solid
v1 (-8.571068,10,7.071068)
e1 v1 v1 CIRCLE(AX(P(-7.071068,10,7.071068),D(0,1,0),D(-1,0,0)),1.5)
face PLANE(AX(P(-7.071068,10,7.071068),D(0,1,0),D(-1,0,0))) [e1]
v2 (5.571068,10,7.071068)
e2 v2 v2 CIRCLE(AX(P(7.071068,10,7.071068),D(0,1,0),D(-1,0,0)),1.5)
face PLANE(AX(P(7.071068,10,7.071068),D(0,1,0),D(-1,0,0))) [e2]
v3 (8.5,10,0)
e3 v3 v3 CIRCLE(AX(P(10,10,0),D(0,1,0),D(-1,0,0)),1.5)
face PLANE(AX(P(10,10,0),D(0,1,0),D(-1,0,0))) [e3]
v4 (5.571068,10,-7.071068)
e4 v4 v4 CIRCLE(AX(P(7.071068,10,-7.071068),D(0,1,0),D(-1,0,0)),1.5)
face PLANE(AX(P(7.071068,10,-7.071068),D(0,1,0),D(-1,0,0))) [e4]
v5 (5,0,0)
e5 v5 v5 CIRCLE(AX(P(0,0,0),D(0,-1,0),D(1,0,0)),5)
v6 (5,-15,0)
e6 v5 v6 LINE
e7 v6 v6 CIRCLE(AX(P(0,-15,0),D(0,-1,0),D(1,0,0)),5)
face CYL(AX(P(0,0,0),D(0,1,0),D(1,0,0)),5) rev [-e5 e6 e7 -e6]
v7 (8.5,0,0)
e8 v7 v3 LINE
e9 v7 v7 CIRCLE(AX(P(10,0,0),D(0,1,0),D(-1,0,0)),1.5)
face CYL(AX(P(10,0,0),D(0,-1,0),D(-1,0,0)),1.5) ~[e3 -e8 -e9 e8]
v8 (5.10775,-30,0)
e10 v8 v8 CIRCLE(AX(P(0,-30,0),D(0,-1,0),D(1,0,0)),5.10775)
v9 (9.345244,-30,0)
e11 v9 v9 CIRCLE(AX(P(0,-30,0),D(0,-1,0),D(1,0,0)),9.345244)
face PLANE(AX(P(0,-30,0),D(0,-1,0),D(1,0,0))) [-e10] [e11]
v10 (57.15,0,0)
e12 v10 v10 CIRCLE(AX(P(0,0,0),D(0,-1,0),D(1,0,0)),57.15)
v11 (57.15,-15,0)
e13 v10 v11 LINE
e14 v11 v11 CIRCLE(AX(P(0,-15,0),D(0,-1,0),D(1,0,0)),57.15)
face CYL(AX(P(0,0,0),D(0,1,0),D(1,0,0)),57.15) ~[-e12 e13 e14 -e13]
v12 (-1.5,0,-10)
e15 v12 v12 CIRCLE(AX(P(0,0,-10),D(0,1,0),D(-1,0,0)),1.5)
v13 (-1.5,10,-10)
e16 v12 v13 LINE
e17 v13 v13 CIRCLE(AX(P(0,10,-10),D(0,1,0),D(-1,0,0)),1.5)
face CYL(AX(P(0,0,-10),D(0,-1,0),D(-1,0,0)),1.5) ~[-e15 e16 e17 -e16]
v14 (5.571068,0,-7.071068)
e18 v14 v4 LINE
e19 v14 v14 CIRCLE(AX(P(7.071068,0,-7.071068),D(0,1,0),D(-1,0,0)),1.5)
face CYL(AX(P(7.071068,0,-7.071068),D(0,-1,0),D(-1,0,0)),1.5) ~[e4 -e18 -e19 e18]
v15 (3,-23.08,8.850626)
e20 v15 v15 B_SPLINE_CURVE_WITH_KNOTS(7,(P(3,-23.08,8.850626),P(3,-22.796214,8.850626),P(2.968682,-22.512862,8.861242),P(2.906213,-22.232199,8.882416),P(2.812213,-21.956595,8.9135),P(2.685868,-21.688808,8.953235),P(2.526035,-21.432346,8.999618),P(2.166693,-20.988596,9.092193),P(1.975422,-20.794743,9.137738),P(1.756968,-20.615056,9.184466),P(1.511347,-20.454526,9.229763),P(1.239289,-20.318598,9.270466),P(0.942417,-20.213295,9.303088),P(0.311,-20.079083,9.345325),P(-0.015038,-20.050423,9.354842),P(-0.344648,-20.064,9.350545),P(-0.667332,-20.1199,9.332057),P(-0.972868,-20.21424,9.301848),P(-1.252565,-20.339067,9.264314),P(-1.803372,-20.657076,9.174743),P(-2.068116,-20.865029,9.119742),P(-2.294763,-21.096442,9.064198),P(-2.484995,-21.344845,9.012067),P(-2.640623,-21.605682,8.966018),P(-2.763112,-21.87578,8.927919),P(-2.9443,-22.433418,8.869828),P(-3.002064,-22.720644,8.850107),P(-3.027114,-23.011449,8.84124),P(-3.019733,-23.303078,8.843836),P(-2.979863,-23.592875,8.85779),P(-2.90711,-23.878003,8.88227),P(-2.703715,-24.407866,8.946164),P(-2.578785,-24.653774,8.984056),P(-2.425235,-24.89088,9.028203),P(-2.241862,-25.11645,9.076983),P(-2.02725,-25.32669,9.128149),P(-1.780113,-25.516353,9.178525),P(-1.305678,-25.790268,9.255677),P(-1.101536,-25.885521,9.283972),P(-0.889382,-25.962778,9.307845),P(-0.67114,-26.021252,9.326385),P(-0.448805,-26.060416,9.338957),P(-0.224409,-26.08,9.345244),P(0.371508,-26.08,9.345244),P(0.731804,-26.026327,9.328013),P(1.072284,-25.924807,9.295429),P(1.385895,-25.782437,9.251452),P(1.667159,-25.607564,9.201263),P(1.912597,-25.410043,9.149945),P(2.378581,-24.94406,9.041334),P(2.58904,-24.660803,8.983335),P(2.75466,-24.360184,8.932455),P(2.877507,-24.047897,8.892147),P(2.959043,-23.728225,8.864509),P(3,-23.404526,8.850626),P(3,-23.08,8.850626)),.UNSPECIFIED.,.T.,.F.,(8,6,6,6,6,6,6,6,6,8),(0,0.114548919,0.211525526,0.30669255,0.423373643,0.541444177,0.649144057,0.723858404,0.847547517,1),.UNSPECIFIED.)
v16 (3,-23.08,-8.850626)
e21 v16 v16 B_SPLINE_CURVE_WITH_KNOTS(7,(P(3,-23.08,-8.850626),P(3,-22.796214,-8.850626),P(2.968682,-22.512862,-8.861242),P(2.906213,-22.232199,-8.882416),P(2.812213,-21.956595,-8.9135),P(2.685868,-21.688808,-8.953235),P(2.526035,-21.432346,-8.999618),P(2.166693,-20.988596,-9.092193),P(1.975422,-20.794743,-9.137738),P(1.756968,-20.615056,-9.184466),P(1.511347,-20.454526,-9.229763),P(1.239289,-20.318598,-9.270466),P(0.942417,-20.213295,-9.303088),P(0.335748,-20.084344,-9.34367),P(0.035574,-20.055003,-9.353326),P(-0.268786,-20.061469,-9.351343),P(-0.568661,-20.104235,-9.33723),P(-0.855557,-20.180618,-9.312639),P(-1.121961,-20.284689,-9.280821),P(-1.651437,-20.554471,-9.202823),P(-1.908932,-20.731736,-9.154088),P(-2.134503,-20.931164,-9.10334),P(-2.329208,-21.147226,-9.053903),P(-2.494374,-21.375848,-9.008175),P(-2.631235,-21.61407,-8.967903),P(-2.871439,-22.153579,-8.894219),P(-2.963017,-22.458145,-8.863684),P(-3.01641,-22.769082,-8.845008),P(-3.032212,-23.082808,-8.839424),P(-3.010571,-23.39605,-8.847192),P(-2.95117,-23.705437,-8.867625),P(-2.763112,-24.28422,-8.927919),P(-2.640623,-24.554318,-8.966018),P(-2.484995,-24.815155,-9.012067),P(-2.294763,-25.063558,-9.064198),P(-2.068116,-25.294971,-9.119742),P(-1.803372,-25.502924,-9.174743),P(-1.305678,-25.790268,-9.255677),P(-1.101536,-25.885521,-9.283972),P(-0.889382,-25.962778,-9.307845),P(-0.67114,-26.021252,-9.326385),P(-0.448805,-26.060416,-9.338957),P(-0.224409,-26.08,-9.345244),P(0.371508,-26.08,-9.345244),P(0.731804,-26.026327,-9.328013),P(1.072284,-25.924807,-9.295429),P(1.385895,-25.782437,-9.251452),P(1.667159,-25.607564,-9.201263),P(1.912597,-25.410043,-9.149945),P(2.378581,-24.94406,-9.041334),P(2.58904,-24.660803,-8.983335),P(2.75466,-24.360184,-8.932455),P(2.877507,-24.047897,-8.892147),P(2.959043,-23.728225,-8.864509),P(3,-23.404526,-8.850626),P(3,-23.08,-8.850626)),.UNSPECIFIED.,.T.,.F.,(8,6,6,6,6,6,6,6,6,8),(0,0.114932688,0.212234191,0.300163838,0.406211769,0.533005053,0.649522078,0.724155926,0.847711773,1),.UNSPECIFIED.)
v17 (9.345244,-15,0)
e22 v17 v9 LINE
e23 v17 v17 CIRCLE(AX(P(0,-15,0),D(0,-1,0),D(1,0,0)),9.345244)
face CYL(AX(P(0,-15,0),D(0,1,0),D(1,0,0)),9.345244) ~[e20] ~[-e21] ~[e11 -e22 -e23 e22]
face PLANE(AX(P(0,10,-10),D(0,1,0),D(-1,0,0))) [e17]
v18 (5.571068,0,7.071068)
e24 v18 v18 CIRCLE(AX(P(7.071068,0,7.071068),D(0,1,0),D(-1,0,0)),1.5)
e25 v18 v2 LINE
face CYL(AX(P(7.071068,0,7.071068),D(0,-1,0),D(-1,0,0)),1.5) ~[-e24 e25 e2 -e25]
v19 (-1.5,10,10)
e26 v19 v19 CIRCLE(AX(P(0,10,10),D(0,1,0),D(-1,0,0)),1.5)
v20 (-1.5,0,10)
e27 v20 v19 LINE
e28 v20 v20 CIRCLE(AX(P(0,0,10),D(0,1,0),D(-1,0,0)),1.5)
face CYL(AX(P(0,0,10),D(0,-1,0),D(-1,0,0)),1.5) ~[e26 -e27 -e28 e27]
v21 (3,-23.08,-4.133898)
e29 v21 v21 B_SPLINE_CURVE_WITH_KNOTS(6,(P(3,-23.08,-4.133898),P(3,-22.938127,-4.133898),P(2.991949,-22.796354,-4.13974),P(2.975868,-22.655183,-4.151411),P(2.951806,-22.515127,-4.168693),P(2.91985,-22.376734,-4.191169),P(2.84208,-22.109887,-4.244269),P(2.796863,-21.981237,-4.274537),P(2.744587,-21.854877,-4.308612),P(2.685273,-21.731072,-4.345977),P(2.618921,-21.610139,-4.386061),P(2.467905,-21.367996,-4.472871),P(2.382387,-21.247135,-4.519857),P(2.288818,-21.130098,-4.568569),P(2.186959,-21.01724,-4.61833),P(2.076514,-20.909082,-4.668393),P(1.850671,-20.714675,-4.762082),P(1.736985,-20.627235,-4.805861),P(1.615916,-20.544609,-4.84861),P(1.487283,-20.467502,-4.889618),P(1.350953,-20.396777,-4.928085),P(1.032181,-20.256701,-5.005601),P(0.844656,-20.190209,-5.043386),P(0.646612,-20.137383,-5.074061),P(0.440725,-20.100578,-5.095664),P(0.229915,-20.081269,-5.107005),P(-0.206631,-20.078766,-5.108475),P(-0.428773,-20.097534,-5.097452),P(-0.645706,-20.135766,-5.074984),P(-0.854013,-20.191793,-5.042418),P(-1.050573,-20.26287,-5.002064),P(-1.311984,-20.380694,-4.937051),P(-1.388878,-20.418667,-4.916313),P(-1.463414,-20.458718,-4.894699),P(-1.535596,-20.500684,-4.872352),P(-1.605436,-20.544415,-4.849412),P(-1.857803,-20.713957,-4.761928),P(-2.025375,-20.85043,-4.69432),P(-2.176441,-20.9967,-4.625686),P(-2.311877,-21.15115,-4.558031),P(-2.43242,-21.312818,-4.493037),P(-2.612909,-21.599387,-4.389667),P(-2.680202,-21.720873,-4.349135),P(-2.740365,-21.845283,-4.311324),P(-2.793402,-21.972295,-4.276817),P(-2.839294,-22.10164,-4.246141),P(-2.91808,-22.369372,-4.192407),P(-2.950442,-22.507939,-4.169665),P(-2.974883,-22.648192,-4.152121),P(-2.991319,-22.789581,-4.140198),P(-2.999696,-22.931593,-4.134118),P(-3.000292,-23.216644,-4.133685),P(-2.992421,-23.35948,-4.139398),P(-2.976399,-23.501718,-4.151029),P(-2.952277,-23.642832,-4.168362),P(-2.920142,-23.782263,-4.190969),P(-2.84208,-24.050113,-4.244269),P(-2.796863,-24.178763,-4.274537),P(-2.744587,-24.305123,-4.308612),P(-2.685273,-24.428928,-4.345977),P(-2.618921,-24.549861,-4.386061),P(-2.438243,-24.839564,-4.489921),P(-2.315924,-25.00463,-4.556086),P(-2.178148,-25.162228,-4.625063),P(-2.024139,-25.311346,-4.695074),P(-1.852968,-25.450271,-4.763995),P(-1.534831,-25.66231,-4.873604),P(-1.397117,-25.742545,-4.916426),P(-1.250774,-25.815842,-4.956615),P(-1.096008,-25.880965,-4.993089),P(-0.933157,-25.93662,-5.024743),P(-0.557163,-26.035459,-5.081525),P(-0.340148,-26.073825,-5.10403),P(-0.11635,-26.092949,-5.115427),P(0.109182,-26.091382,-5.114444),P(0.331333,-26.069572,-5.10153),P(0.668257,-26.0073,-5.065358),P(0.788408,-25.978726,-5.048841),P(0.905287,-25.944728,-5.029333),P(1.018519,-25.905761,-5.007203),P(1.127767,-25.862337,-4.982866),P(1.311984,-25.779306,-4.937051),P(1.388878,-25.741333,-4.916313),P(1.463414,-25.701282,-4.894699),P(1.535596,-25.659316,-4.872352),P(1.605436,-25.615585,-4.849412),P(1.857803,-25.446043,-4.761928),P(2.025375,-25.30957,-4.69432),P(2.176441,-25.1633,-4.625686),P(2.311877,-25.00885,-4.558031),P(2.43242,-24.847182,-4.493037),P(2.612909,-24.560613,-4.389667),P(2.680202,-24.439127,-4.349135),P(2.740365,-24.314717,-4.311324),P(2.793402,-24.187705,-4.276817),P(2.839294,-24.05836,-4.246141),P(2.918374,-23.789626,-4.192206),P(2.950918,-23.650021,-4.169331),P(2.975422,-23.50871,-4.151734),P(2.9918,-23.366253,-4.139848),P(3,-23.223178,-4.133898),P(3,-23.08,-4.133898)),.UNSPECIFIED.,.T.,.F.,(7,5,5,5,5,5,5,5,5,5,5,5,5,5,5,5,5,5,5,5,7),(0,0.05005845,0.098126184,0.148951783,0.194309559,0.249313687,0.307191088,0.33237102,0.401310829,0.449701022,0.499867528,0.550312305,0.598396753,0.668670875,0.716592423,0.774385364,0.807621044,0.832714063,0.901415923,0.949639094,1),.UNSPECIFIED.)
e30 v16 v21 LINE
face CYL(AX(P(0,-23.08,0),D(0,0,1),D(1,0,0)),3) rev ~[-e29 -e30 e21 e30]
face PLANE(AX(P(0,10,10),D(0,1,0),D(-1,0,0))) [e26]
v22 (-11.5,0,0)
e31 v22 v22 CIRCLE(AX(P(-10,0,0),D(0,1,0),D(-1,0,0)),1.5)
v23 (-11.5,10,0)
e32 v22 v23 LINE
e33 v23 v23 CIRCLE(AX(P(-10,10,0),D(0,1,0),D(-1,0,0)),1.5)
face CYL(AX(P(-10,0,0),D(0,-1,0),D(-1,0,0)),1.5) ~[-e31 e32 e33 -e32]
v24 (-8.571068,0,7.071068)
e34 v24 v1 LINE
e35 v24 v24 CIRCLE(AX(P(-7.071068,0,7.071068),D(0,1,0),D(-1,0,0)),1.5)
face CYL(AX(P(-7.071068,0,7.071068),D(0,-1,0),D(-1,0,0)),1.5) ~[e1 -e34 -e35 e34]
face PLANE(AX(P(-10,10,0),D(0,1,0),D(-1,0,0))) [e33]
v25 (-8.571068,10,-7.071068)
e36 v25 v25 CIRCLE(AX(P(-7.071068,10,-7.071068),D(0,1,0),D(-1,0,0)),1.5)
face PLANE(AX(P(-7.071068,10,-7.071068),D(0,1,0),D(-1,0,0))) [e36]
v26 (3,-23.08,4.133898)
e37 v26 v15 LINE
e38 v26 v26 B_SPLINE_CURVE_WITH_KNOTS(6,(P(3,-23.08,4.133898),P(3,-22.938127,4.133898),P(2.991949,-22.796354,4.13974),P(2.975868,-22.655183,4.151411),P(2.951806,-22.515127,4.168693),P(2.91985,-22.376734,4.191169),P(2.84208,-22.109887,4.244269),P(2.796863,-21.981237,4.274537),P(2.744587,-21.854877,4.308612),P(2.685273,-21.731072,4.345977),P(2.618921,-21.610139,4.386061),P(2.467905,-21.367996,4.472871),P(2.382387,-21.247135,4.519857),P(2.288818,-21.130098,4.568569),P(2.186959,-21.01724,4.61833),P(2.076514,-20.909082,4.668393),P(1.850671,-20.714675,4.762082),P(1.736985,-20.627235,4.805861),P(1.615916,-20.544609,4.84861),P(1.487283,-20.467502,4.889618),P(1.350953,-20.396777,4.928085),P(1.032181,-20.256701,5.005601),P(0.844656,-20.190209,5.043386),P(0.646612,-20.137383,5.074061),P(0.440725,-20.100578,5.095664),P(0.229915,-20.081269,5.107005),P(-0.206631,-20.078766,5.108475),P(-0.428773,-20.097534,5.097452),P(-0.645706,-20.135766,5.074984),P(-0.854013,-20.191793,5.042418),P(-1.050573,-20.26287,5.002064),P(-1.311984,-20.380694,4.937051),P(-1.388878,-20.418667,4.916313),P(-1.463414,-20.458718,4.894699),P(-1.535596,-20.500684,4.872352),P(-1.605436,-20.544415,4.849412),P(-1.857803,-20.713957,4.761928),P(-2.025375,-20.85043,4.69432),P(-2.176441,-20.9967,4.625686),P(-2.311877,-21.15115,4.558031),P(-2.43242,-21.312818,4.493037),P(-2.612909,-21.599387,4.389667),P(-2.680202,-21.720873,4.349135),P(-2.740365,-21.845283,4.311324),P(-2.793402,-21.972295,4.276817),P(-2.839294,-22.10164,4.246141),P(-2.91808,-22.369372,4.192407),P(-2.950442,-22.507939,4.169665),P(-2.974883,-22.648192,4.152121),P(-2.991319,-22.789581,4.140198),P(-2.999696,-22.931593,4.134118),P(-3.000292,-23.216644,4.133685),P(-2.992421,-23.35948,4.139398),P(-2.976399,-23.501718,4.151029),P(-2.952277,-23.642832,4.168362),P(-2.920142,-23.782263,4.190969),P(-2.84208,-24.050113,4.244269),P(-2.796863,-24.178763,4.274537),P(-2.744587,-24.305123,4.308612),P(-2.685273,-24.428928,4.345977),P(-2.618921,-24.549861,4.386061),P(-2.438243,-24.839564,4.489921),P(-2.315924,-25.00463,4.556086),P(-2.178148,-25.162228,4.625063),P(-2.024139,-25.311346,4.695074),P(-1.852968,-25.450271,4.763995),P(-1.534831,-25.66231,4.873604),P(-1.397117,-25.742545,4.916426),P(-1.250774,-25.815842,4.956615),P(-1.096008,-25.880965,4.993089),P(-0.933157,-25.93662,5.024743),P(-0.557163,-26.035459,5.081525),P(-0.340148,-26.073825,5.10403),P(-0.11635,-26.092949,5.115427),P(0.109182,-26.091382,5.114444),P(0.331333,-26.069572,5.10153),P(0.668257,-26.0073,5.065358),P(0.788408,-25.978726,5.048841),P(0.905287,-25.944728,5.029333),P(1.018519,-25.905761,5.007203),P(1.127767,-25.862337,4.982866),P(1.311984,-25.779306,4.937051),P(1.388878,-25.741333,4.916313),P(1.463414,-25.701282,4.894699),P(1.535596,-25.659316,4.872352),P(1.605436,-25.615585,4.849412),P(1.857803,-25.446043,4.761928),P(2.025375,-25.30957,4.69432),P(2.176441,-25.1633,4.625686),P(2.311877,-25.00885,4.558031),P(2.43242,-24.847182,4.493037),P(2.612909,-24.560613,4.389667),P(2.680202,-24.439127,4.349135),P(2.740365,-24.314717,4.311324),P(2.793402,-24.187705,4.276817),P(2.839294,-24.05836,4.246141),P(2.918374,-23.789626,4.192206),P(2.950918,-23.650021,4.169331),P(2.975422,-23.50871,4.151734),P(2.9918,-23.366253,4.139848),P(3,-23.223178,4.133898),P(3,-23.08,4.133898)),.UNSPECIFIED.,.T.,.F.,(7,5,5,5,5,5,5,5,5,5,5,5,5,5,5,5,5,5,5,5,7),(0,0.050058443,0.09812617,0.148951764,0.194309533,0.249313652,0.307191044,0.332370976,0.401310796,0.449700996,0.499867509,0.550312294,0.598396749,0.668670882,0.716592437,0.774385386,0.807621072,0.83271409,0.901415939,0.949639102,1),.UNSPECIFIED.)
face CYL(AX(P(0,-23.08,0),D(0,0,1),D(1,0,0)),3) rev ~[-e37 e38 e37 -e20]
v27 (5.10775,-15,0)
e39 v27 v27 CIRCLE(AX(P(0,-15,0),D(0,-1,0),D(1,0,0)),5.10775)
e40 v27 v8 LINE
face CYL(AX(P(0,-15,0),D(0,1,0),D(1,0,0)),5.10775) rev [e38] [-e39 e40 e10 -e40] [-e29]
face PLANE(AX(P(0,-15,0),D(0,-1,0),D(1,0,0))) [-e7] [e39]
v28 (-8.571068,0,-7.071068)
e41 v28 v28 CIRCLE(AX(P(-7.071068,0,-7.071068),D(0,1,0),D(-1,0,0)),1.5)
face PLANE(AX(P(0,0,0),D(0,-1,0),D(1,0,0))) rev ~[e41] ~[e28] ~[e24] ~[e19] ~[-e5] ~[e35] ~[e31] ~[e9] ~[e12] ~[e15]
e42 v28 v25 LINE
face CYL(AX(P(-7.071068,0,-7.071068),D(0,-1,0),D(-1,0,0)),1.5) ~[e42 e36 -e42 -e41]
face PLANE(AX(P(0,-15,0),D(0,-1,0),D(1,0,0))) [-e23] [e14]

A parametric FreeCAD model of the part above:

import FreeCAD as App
import Part
import Sketcher
Q = App.Units.Quantity

doc = App.newDocument("Part")
body = doc.addObject("PartDesign::Body", "Body")

# Sketch on XZ plane
sketch1 = body.newObject("Sketcher::SketchObject", "Sketch")
sketch1.AttachmentSupport = (doc.getObject("XZ_Plane"), [""])
sketch1.MapMode = "FlatFace"
sketch1.addGeometry([
    Part.Circle(App.Vector(0, 0, 0), App.Vector(0, 0, 1), 57.15),
    Part.Circle(App.Vector(0, 0, 0), App.Vector(0, 0, 1), 5),
], False)
sketch1.addConstraint([
    Sketcher.Constraint("Coincident", 0, 3, -1, 1),
    Sketcher.Constraint("Coincident", 1, 3, -1, 1),
    Sketcher.Constraint("Diameter", 1, Q("10 mm")),
    Sketcher.Constraint("Diameter", 0, Q("114.3 mm")),
])
pad1 = body.newObject("PartDesign::Pad", "Pad")
pad1.Profile = sketch1
pad1.Length = 15

# Sketch on XZ plane
sketch2 = body.newObject("Sketcher::SketchObject", "Sketch001")
sketch2.AttachmentSupport = (doc.getObject("XZ_Plane"), [""])
sketch2.MapMode = "FlatFace"
sketch2.AttachmentOffset = App.Placement(App.Vector(0, 0, 15), App.Rotation())
sketch2.addGeometry([
    Part.Circle(App.Vector(0, 0, 0), App.Vector(0, 0, 1), 9.345244),
    Part.Circle(App.Vector(0, 0, 0), App.Vector(0, 0, 1), 5.10775),
], False)
sketch2.addConstraint([
    Sketcher.Constraint("Coincident", 0, 3, -1, 1),
    Sketcher.Constraint("Coincident", 1, 3, -1, 1),
    Sketcher.Constraint("Diameter", 1, Q("10.2155 mm")),
    Sketcher.Constraint("Diameter", 0, Q("18.690488 mm")),
])
pad2 = body.newObject("PartDesign::Pad", "Pad001")
pad2.Profile = sketch2
pad2.Length = 15

# Sketch on XY plane
sketch3 = body.newObject("Sketcher::SketchObject", "Sketch002")
sketch3.AttachmentSupport = (doc.getObject("XY_Plane"), [""])
sketch3.MapMode = "FlatFace"
sketch3.addGeometry(Part.Circle(App.Vector(0, -23.08, 0), App.Vector(0, 0, 1), 3), False)
sketch3.addConstraint([
    Sketcher.Constraint("PointOnObject", 0, 3, -2),
    Sketcher.Constraint("Diameter", 0, Q("6 mm")),
    Sketcher.Constraint("DistanceY", 0, 3, -1, 1, Q("23.08 mm")),
])
pocket1 = body.newObject("PartDesign::Pocket", "Pocket")
pocket1.Profile = sketch3
pocket1.Length = 25.4
pocket1.Midplane = True

# Sketch on XZ plane
sketch4 = body.newObject("Sketcher::SketchObject", "Sketch003")
sketch4.AttachmentSupport = (doc.getObject("XZ_Plane"), [""])
sketch4.MapMode = "FlatFace"
sketch4.addGeometry([
    Part.Circle(App.Vector(0, 10, 0), App.Vector(0, 0, 1), 1.5),  # 0
    Part.Circle(App.Vector(-7.071068, 7.071068, 0), App.Vector(0, 0, 1), 1.5),  # 1
    Part.Circle(App.Vector(-10, 0, 0), App.Vector(0, 0, 1), 1.5),  # 2
    Part.Circle(App.Vector(-7.071068, -7.071068, 0), App.Vector(0, 0, 1), 1.5),  # 3
    Part.Circle(App.Vector(0, -10, 0), App.Vector(0, 0, 1), 1.5),  # 4
    Part.Circle(App.Vector(10, 0, 0), App.Vector(0, 0, 1), 1.5),  # 5
    Part.Circle(App.Vector(7.071068, -7.071068, 0), App.Vector(0, 0, 1), 1.5),  # 6
    Part.Circle(App.Vector(7.071068, 7.071068, 0), App.Vector(0, 0, 1), 1.5),  # 7
], False)
sketch4.addConstraint([
    Sketcher.Constraint("Equal", 0, 1),
    Sketcher.Constraint("Equal", 1, 2),
    Sketcher.Constraint("Equal", 2, 3),
    Sketcher.Constraint("Equal", 3, 4),
    Sketcher.Constraint("Equal", 4, 5),
    Sketcher.Constraint("Equal", 5, 6),
    Sketcher.Constraint("Equal", 6, 7),
    Sketcher.Constraint("Symmetric", 0, 3, 4, 3, -1, 1),
    Sketcher.Constraint("Symmetric", 2, 3, 5, 3, -1, 1),
    Sketcher.Constraint("Symmetric", 1, 3, 6, 3, -1, 1),
    Sketcher.Constraint("Symmetric", 3, 3, 7, 3, -1, 1),
    Sketcher.Constraint("Symmetric", 3, 3, 6, 3, -2),
    Sketcher.Constraint("PointOnObject", 0, 3, -2),
    Sketcher.Constraint("PointOnObject", 2, 3, -1),
    Sketcher.Constraint("Diameter", 0, Q("3 mm")),
    Sketcher.Constraint("DistanceY", -1, 1, 0, 3, Q("10 mm")),
    Sketcher.Constraint("DistanceX", 2, 3, -1, 1, Q("10 mm")),
    Sketcher.Constraint("DistanceX", 1, 3, -1, 1, Q("7.071068 mm")),
    Sketcher.Constraint("DistanceY", -1, 1, 1, 3, Q("7.071068 mm")),
])
pad3 = body.newObject("PartDesign::Pad", "Pad002")
pad3.Profile = sketch4
pad3.Length = 10
pad3.Reversed = True

doc.recompute()
